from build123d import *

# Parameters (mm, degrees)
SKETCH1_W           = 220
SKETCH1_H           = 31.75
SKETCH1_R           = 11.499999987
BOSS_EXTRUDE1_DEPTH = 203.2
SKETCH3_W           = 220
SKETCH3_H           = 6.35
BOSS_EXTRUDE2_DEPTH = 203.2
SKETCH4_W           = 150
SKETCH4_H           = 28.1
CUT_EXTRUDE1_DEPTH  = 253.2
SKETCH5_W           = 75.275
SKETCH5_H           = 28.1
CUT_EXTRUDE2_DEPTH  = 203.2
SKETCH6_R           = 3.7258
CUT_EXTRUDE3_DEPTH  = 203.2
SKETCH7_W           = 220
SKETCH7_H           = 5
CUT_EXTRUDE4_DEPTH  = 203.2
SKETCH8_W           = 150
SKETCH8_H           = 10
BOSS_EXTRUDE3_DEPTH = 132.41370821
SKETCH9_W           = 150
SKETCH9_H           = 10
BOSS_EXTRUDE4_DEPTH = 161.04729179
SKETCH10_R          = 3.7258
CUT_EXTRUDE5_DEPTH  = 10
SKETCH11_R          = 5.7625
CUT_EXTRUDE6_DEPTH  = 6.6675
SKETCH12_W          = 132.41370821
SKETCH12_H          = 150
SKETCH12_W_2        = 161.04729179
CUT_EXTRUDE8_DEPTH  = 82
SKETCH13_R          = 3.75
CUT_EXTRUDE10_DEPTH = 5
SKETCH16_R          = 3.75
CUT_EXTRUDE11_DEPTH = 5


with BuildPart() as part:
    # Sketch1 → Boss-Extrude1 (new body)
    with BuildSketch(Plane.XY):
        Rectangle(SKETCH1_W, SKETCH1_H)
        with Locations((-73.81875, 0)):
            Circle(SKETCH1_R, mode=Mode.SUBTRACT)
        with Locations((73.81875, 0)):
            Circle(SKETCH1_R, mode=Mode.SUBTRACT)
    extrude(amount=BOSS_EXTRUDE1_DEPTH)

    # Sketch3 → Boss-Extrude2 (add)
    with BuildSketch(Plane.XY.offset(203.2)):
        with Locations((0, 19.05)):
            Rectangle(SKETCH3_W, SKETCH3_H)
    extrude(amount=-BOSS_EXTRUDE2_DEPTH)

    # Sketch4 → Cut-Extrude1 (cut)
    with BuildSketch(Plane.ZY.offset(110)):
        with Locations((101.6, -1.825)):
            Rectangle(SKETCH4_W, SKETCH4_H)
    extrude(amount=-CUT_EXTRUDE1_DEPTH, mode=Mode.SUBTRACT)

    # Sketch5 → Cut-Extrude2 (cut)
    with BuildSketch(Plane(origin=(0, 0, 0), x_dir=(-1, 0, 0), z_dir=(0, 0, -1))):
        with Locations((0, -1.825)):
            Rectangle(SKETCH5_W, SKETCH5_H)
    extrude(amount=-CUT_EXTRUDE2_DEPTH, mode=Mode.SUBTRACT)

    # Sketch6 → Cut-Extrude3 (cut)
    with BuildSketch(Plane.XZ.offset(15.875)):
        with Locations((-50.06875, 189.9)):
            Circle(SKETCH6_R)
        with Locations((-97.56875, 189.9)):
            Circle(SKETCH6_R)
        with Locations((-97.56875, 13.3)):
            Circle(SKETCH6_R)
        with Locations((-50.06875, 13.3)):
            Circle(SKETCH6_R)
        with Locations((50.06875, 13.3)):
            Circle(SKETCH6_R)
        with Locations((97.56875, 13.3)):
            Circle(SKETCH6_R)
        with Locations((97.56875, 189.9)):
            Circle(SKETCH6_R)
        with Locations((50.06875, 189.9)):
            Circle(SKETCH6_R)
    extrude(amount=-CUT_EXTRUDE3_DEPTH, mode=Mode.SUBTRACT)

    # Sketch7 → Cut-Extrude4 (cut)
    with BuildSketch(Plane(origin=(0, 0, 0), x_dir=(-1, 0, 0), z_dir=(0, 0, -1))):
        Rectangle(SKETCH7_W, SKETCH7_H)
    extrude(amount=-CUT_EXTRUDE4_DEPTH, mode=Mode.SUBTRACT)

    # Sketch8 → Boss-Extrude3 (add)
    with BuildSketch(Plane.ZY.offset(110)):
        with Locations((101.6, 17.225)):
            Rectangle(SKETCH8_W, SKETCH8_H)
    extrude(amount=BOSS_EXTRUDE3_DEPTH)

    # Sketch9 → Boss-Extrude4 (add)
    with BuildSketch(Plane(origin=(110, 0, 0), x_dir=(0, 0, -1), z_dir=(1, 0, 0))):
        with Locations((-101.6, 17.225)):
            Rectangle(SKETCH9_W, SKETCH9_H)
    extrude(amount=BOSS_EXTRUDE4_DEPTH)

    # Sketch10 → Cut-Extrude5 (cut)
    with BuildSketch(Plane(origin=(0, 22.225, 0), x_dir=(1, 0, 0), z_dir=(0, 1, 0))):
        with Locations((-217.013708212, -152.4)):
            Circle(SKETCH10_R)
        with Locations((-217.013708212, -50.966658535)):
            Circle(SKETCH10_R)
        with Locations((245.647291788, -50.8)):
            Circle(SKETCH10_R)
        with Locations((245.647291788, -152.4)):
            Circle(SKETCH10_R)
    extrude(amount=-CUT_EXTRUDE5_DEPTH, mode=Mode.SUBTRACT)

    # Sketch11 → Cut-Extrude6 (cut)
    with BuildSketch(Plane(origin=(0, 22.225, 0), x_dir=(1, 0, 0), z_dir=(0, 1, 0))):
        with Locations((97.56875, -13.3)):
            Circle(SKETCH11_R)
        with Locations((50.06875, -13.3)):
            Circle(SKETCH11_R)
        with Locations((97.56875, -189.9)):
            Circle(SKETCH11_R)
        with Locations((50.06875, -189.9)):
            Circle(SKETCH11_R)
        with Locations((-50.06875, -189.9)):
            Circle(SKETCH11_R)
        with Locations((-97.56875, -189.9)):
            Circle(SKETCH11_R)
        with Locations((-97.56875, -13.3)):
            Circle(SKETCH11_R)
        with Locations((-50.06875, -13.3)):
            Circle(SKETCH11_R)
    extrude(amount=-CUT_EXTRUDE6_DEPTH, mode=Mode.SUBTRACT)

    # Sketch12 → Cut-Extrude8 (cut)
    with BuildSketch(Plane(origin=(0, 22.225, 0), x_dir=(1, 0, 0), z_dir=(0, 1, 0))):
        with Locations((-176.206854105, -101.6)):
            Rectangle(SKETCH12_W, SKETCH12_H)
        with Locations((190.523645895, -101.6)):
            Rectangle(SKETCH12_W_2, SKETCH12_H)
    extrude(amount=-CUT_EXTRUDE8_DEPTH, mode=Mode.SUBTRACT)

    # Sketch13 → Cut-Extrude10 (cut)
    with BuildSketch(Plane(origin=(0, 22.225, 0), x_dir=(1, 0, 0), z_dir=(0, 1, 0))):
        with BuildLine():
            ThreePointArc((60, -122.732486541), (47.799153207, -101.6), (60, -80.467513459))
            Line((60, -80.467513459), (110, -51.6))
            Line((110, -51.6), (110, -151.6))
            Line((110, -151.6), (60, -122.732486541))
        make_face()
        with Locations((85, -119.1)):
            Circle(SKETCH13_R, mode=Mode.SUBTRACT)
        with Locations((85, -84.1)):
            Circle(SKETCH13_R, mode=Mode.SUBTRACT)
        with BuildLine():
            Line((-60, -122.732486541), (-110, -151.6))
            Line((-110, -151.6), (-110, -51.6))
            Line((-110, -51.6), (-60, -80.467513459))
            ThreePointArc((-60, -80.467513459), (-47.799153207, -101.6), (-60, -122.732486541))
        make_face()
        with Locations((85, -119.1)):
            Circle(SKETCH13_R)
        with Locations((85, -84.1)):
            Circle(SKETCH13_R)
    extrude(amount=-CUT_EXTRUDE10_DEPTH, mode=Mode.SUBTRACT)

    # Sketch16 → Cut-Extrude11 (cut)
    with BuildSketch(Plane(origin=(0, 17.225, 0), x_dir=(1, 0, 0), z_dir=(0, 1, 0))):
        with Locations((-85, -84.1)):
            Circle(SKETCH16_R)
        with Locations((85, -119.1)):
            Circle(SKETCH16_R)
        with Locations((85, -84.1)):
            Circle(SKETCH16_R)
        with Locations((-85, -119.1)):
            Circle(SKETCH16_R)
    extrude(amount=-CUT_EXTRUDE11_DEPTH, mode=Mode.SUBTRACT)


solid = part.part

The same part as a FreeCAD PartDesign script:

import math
import FreeCAD as App
import Part
import Sketcher
Q = App.Units.Quantity


def add_polygon(sketch, points):
    """Adds a closed chain of lines whose ends are joined by coincident constraints."""
    first, n = sketch.GeometryCount, len(points)
    for a, b in zip(points, points[1:] + points[:1]):
        sketch.addGeometry(Part.LineSegment(App.Vector(*a, 0), App.Vector(*b, 0)), False)
    for i in range(n):
        sketch.addConstraint(Sketcher.Constraint("Coincident", first + i, 2, first + (i + 1) % n, 1))

doc = App.newDocument("Part")
body = doc.addObject("PartDesign::Body", "Body")
body.AllowCompound = True

sketch1 = doc.addObject("Sketcher::SketchObject", "Sketch")
body.addObject(sketch1)
sketch1.AttachmentSupport = (doc.XY_Plane, [""])
sketch1.MapMode = "FlatFace"
add_polygon(sketch1, [(-110, 16), (-110, -16), (110, -16), (110, 16)])
sketch1.addGeometry(Part.Circle(App.Vector(-74, 0, 0), App.Vector(0, 0, 1), 11), False)
sketch1.addGeometry(Part.Circle(App.Vector(74, 0, 0), App.Vector(0, 0, 1), 11), False)
sketch1.addConstraint(Sketcher.Constraint("Vertical", 0))
sketch1.addConstraint(Sketcher.Constraint("Horizontal", 1))
sketch1.addConstraint(Sketcher.Constraint("Vertical", 2))
sketch1.addConstraint(Sketcher.Constraint("Horizontal", 3))
sketch1.addConstraint(Sketcher.Constraint("Equal", 4, 5))
sketch1.addConstraint(Sketcher.Constraint("Symmetric", 4, 3, 5, 3, -1, 1))
sketch1.addConstraint(Sketcher.Constraint("Symmetric", 0, 2, 2, 2, -1, 1))
sketch1.addConstraint(Sketcher.Constraint("PointOnObject", 4, 3, -1))
sketch1.addConstraint(Sketcher.Constraint("Diameter", 4, Q("23 mm")))
sketch1.addConstraint(Sketcher.Constraint("DistanceX", 1, 1, 1, 2, Q("220 mm")))
sketch1.addConstraint(Sketcher.Constraint("DistanceY", 0, 2, 0, 1, Q("31.75 mm")))
sketch1.addConstraint(Sketcher.Constraint("DistanceX", 4, 3, 5, 3, Q("147.6375 mm")))
pad1 = doc.addObject("PartDesign::Pad", "Pad")
body.addObject(pad1)
pad1.Profile = sketch1
pad1.Length = 203.2

sketch2 = doc.addObject("Sketcher::SketchObject", "Sketch001")
body.addObject(sketch2)
sketch2.AttachmentSupport = (doc.XY_Plane, [""])
sketch2.MapMode = "FlatFace"
sketch2.AttachmentOffset = App.Placement(App.Vector(0, 0, 203.2), App.Rotation())
add_polygon(sketch2, [(-110, 22), (-110, 16), (110, 16), (110, 22)])
sketch2.addConstraint(Sketcher.Constraint("Vertical", 0))
sketch2.addConstraint(Sketcher.Constraint("Horizontal", 1))
sketch2.addConstraint(Sketcher.Constraint("Vertical", 2))
sketch2.addConstraint(Sketcher.Constraint("Horizontal", 3))
sketch2.addConstraint(Sketcher.Constraint("DistanceX", 1, 1, 1, 2, Q("220 mm")))
sketch2.addConstraint(Sketcher.Constraint("DistanceX", 0, 2, -1, 1, Q("110 mm")))
sketch2.addConstraint(Sketcher.Constraint("DistanceY", 0, 2, 0, 1, Q("6.35 mm")))
sketch2.addConstraint(Sketcher.Constraint("DistanceY", -1, 1, 0, 2, Q("15.875 mm")))
pad2 = doc.addObject("PartDesign::Pad", "Pad001")
body.addObject(pad2)
pad2.Profile = sketch2
pad2.Length = 203.2
pad2.Reversed = True

sketch3 = doc.addObject("Sketcher::SketchObject", "Sketch002")
body.addObject(sketch3)
sketch3.AttachmentSupport = (doc.YZ_Plane, [""])
sketch3.MapMode = "FlatFace"
sketch3.AttachmentOffset = App.Placement(App.Vector(0, 0, -110), App.Rotation())
add_polygon(sketch3, [(12, 27), (-16, 27), (-16, 177), (12, 177)])
sketch3.addConstraint(Sketcher.Constraint("Horizontal", 0))
sketch3.addConstraint(Sketcher.Constraint("Vertical", 1))
sketch3.addConstraint(Sketcher.Constraint("Horizontal", 2))
sketch3.addConstraint(Sketcher.Constraint("Vertical", 3))
sketch3.addConstraint(Sketcher.Constraint("DistanceY", 1, 1, 1, 2, Q("150 mm")))
sketch3.addConstraint(Sketcher.Constraint("DistanceX", 0, 2, 0, 1, Q("28.1 mm")))
sketch3.addConstraint(Sketcher.Constraint("DistanceY", -1, 1, 0, 2, Q("26.6 mm")))
sketch3.addConstraint(Sketcher.Constraint("DistanceX", 0, 2, -1, 1, Q("15.875 mm")))
pocket1 = doc.addObject("PartDesign::Pocket", "Pocket")
body.addObject(pocket1)
pocket1.Profile = sketch3
pocket1.Length = 253.2
pocket1.Reversed = True

sketch4 = doc.addObject("Sketcher::SketchObject", "Sketch003")
body.addObject(sketch4)
sketch4.AttachmentSupport = (doc.XY_Plane, [""])
sketch4.MapMode = "FlatFace"
add_polygon(sketch4, [(38, 12), (38, -16), (-38, -16), (-38, 12)])
sketch4.addConstraint(Sketcher.Constraint("Vertical", 0))
sketch4.addConstraint(Sketcher.Constraint("Horizontal", 1))
sketch4.addConstraint(Sketcher.Constraint("Vertical", 2))
sketch4.addConstraint(Sketcher.Constraint("Horizontal", 3))
sketch4.addConstraint(Sketcher.Constraint("DistanceY", 0, 2, 0, 1, Q("28.1 mm")))
sketch4.addConstraint(Sketcher.Constraint("DistanceX", 1, 2, 1, 1, Q("75.275 mm")))
sketch4.addConstraint(Sketcher.Constraint("DistanceY", 0, 2, -1, 1, Q("15.875 mm")))
sketch4.addConstraint(Sketcher.Constraint("DistanceX", -1, 1, 0, 2, Q("37.6375 mm")))
pocket2 = doc.addObject("PartDesign::Pocket", "Pocket001")
body.addObject(pocket2)
pocket2.Profile = sketch4
pocket2.Length = 203.2
pocket2.Reversed = True

sketch5 = doc.addObject("Sketcher::SketchObject", "Sketch004")
body.addObject(sketch5)
sketch5.AttachmentSupport = (doc.XZ_Plane, [""])
sketch5.MapMode = "FlatFace"
sketch5.AttachmentOffset = App.Placement(App.Vector(0, 0, 15.875), App.Rotation())
sketch5.addGeometry(Part.Circle(App.Vector(-50.1, 189.9, 0), App.Vector(0, 0, 1), 3.7), False)
sketch5.addGeometry(Part.Circle(App.Vector(-97.6, 189.9, 0), App.Vector(0, 0, 1), 3.7), False)
sketch5.addGeometry(Part.Circle(App.Vector(-97.6, 13.3, 0), App.Vector(0, 0, 1), 3.7), False)
sketch5.addGeometry(Part.Circle(App.Vector(-50.1, 13.3, 0), App.Vector(0, 0, 1), 3.7), False)
sketch5.addGeometry(Part.Circle(App.Vector(50.1, 13.3, 0), App.Vector(0, 0, 1), 3.7), False)
sketch5.addGeometry(Part.Circle(App.Vector(97.6, 13.3, 0), App.Vector(0, 0, 1), 3.7), False)
sketch5.addGeometry(Part.Circle(App.Vector(97.6, 189.9, 0), App.Vector(0, 0, 1), 3.7), False)
sketch5.addGeometry(Part.Circle(App.Vector(50.1, 189.9, 0), App.Vector(0, 0, 1), 3.7), False)
sketch5.addConstraint(Sketcher.Constraint("Equal", 0, 1))
sketch5.addConstraint(Sketcher.Constraint("Equal", 1, 2))
sketch5.addConstraint(Sketcher.Constraint("Equal", 2, 3))
sketch5.addConstraint(Sketcher.Constraint("Equal", 3, 4))
sketch5.addConstraint(Sketcher.Constraint("Equal", 4, 5))
sketch5.addConstraint(Sketcher.Constraint("Equal", 5, 6))
sketch5.addConstraint(Sketcher.Constraint("Equal", 6, 7))
sketch5.addConstraint(Sketcher.Constraint("Symmetric", 3, 3, 4, 3, -2))
sketch5.addConstraint(Sketcher.Constraint("Symmetric", 2, 3, 5, 3, -2))
sketch5.addConstraint(Sketcher.Constraint("Symmetric", 1, 3, 6, 3, -2))
sketch5.addConstraint(Sketcher.Constraint("Symmetric", 0, 3, 7, 3, -2))
sketch5.addConstraint(Sketcher.Constraint("Horizontal", 0, 3, 1, 3))
sketch5.addConstraint(Sketcher.Constraint("Horizontal", 2, 3, 3, 3))
sketch5.addConstraint(Sketcher.Constraint("Vertical", 1, 3, 2, 3))
sketch5.addConstraint(Sketcher.Constraint("Vertical", 0, 3, 3, 3))
sketch5.addConstraint(Sketcher.Constraint("Diameter", 0, Q("7.4516 mm")))
sketch5.addConstraint(Sketcher.Constraint("DistanceY", -1, 1, 0, 3, Q("189.9 mm")))
sketch5.addConstraint(Sketcher.Constraint("DistanceY", -1, 1, 2, 3, Q("13.3 mm")))
sketch5.addConstraint(Sketcher.Constraint("DistanceX", 1, 3, 0, 3, Q("47.5 mm")))
sketch5.addConstraint(Sketcher.Constraint("DistanceX", 3, 3, 4, 3, Q("100.1375 mm")))
pocket3 = doc.addObject("PartDesign::Pocket", "Pocket002")
body.addObject(pocket3)
pocket3.Profile = sketch5
pocket3.Length = 203.2

sketch6 = doc.addObject("Sketcher::SketchObject", "Sketch005")
body.addObject(sketch6)
sketch6.AttachmentSupport = (doc.XY_Plane, [""])
sketch6.MapMode = "FlatFace"
add_polygon(sketch6, [(110, 2), (110, -2), (-110, -2), (-110, 2)])
sketch6.addConstraint(Sketcher.Constraint("Vertical", 0))
sketch6.addConstraint(Sketcher.Constraint("Horizontal", 1))
sketch6.addConstraint(Sketcher.Constraint("Vertical", 2))
sketch6.addConstraint(Sketcher.Constraint("Horizontal", 3))
sketch6.addConstraint(Sketcher.Constraint("Symmetric", 0, 2, 2, 2, -1, 1))
sketch6.addConstraint(Sketcher.Constraint("DistanceX", 1, 2, 1, 1, Q("220 mm")))
sketch6.addConstraint(Sketcher.Constraint("DistanceY", 0, 2, 0, 1, Q("5 mm")))
pocket4 = doc.addObject("PartDesign::Pocket", "Pocket003")
body.addObject(pocket4)
pocket4.Profile = sketch6
pocket4.Length = 203.2
pocket4.Reversed = True

sketch7 = doc.addObject("Sketcher::SketchObject", "Sketch006")
body.addObject(sketch7)
sketch7.AttachmentSupport = (doc.YZ_Plane, [""])
sketch7.MapMode = "FlatFace"
sketch7.AttachmentOffset = App.Placement(App.Vector(0, 0, -110), App.Rotation())
add_polygon(sketch7, [(22, 27), (12, 27), (12, 177), (22, 177)])
sketch7.addConstraint(Sketcher.Constraint("Horizontal", 0))
sketch7.addConstraint(Sketcher.Constraint("Vertical", 1))
sketch7.addConstraint(Sketcher.Constraint("Horizontal", 2))
sketch7.addConstraint(Sketcher.Constraint("Vertical", 3))
sketch7.addConstraint(Sketcher.Constraint("DistanceX", 0, 2, 0, 1, Q("10 mm")))
sketch7.addConstraint(Sketcher.Constraint("DistanceY", 1, 1, 1, 2, Q("150 mm")))
sketch7.addConstraint(Sketcher.Constraint("DistanceY", -1, 1, 0, 2, Q("26.6 mm")))
sketch7.addConstraint(Sketcher.Constraint("DistanceX", -1, 1, 0, 2, Q("12.225 mm")))
pad3 = doc.addObject("PartDesign::Pad", "Pad002")
body.addObject(pad3)
pad3.Profile = sketch7
pad3.Length = 132.413708
pad3.Reversed = True

sketch8 = doc.addObject("Sketcher::SketchObject", "Sketch007")
body.addObject(sketch8)
sketch8.AttachmentSupport = (doc.YZ_Plane, [""])
sketch8.MapMode = "FlatFace"
sketch8.AttachmentOffset = App.Placement(App.Vector(0, 0, 110), App.Rotation())
add_polygon(sketch8, [(22, 177), (12, 177), (12, 27), (22, 27)])
sketch8.addConstraint(Sketcher.Constraint("Horizontal", 0))
sketch8.addConstraint(Sketcher.Constraint("Vertical", 1))
sketch8.addConstraint(Sketcher.Constraint("Horizontal", 2))
sketch8.addConstraint(Sketcher.Constraint("Vertical", 3))
sketch8.addConstraint(Sketcher.Constraint("DistanceX", 0, 2, 0, 1, Q("10 mm")))
sketch8.addConstraint(Sketcher.Constraint("DistanceY", 1, 2, 1, 1, Q("150 mm")))
sketch8.addConstraint(Sketcher.Constraint("DistanceY", -1, 1, 0, 2, Q("176.6 mm")))
sketch8.addConstraint(Sketcher.Constraint("DistanceX", -1, 1, 0, 2, Q("12.225 mm")))
pad4 = doc.addObject("PartDesign::Pad", "Pad003")
body.addObject(pad4)
pad4.Profile = sketch8
pad4.Length = 161.047292

sketch9 = doc.addObject("Sketcher::SketchObject", "Sketch008")
body.addObject(sketch9)
sketch9.AttachmentSupport = (doc.XZ_Plane, [""])
sketch9.MapMode = "FlatFace"
sketch9.AttachmentOffset = App.Placement(App.Vector(0, 0, -22.225), App.Rotation())
sketch9.addGeometry(Part.Circle(App.Vector(-217, 152.4, 0), App.Vector(0, 0, 1), 3.7), False)
sketch9.addGeometry(Part.Circle(App.Vector(-217, 51, 0), App.Vector(0, 0, 1), 3.7), False)
sketch9.addGeometry(Part.Circle(App.Vector(245.6, 50.8, 0), App.Vector(0, 0, 1), 3.7), False)
sketch9.addGeometry(Part.Circle(App.Vector(245.6, 152.4, 0), App.Vector(0, 0, 1), 3.7), False)
sketch9.addConstraint(Sketcher.Constraint("Equal", 0, 1))
sketch9.addConstraint(Sketcher.Constraint("Equal", 1, 2))
sketch9.addConstraint(Sketcher.Constraint("Equal", 2, 3))
sketch9.addConstraint(Sketcher.Constraint("Horizontal", 0, 3, 3, 3))
sketch9.addConstraint(Sketcher.Constraint("Vertical", 0, 3, 1, 3))
sketch9.addConstraint(Sketcher.Constraint("Vertical", 2, 3, 3, 3))
sketch9.addConstraint(Sketcher.Constraint("Diameter", 0, Q("7.4516 mm")))
sketch9.addConstraint(Sketcher.Constraint("DistanceY", -1, 1, 0, 3, Q("152.4 mm")))
sketch9.addConstraint(Sketcher.Constraint("DistanceY", -1, 1, 2, 3, Q("50.8 mm")))
sketch9.addConstraint(Sketcher.Constraint("DistanceX", 1, 3, 2, 3, Q("462.661 mm")))
sketch9.addConstraint(Sketcher.Constraint("DistanceX", 0, 3, -1, 1, Q("217.013708 mm")))
sketch9.addConstraint(Sketcher.Constraint("DistanceY", -1, 1, 1, 3, Q("50.966659 mm")))
pocket5 = doc.addObject("PartDesign::Pocket", "Pocket004")
body.addObject(pocket5)
pocket5.Profile = sketch9
pocket5.Length = 10
pocket5.Reversed = True

sketch10 = doc.addObject("Sketcher::SketchObject", "Sketch009")
body.addObject(sketch10)
sketch10.AttachmentSupport = (doc.XZ_Plane, [""])
sketch10.MapMode = "FlatFace"
sketch10.AttachmentOffset = App.Placement(App.Vector(0, 0, -22.225), App.Rotation())
sketch10.addGeometry(Part.Circle(App.Vector(98, 13, 0), App.Vector(0, 0, 1), 6), False)
sketch10.addGeometry(Part.Circle(App.Vector(50, 13, 0), App.Vector(0, 0, 1), 6), False)
sketch10.addGeometry(Part.Circle(App.Vector(98, 190, 0), App.Vector(0, 0, 1), 6), False)
sketch10.addGeometry(Part.Circle(App.Vector(50, 190, 0), App.Vector(0, 0, 1), 6), False)
sketch10.addGeometry(Part.Circle(App.Vector(-50, 190, 0), App.Vector(0, 0, 1), 6), False)
sketch10.addGeometry(Part.Circle(App.Vector(-98, 190, 0), App.Vector(0, 0, 1), 6), False)
sketch10.addGeometry(Part.Circle(App.Vector(-98, 13, 0), App.Vector(0, 0, 1), 6), False)
sketch10.addGeometry(Part.Circle(App.Vector(-50, 13, 0), App.Vector(0, 0, 1), 6), False)
sketch10.addConstraint(Sketcher.Constraint("Equal", 0, 1))
sketch10.addConstraint(Sketcher.Constraint("Equal", 1, 2))
sketch10.addConstraint(Sketcher.Constraint("Equal", 2, 3))
sketch10.addConstraint(Sketcher.Constraint("Equal", 3, 4))
sketch10.addConstraint(Sketcher.Constraint("Equal", 4, 5))
sketch10.addConstraint(Sketcher.Constraint("Equal", 5, 6))
sketch10.addConstraint(Sketcher.Constraint("Equal", 6, 7))
sketch10.addConstraint(Sketcher.Constraint("Symmetric", 3, 3, 4, 3, -2))
sketch10.addConstraint(Sketcher.Constraint("Symmetric", 2, 3, 5, 3, -2))
sketch10.addConstraint(Sketcher.Constraint("Symmetric", 0, 3, 6, 3, -2))
sketch10.addConstraint(Sketcher.Constraint("Symmetric", 1, 3, 7, 3, -2))
sketch10.addConstraint(Sketcher.Constraint("Horizontal", 0, 3, 1, 3))
sketch10.addConstraint(Sketcher.Constraint("Horizontal", 2, 3, 3, 3))
sketch10.addConstraint(Sketcher.Constraint("Vertical", 0, 3, 2, 3))
sketch10.addConstraint(Sketcher.Constraint("Vertical", 1, 3, 3, 3))
sketch10.addConstraint(Sketcher.Constraint("Diameter", 0, Q("11.525 mm")))
sketch10.addConstraint(Sketcher.Constraint("DistanceY", -1, 1, 0, 3, Q("13.3 mm")))
sketch10.addConstraint(Sketcher.Constraint("DistanceY", -1, 1, 2, 3, Q("189.9 mm")))
sketch10.addConstraint(Sketcher.Constraint("DistanceX", 1, 3, 0, 3, Q("47.5 mm")))
sketch10.addConstraint(Sketcher.Constraint("DistanceX", 4, 3, 3, 3, Q("100.1375 mm")))
pocket6 = doc.addObject("PartDesign::Pocket", "Pocket005")
body.addObject(pocket6)
pocket6.Profile = sketch10
pocket6.Length = 6.6675
pocket6.Reversed = True

sketch11 = doc.addObject("Sketcher::SketchObject", "Sketch010")
body.addObject(sketch11)
sketch11.AttachmentSupport = (doc.XZ_Plane, [""])
sketch11.MapMode = "FlatFace"
sketch11.AttachmentOffset = App.Placement(App.Vector(0, 0, -22.225), App.Rotation())
add_polygon(sketch11, [(-242, 27), (-242, 177), (-110, 177), (-110, 27)])
add_polygon(sketch11, [(110, 27), (110, 177), (271, 177), (271, 27)])
sketch11.addConstraint(Sketcher.Constraint("Vertical", 0))
sketch11.addConstraint(Sketcher.Constraint("Horizontal", 1))
sketch11.addConstraint(Sketcher.Constraint("Vertical", 2))
sketch11.addConstraint(Sketcher.Constraint("Horizontal", 3))
sketch11.addConstraint(Sketcher.Constraint("Vertical", 4))
sketch11.addConstraint(Sketcher.Constraint("Horizontal", 5))
sketch11.addConstraint(Sketcher.Constraint("Vertical", 6))
sketch11.addConstraint(Sketcher.Constraint("Horizontal", 7))
sketch11.addConstraint(Sketcher.Constraint("Symmetric", 1, 2, 4, 2, -2))
sketch11.addConstraint(Sketcher.Constraint("Horizontal", 3, 2, 6, 2))
sketch11.addConstraint(Sketcher.Constraint("DistanceY", 0, 1, 0, 2, Q("150 mm")))
sketch11.addConstraint(Sketcher.Constraint("DistanceX", 1, 2, -1, 1, Q("110 mm")))
sketch11.addConstraint(Sketcher.Constraint("DistanceY", -1, 1, 0, 2, Q("176.6 mm")))
sketch11.addConstraint(Sketcher.Constraint("DistanceX", 0, 2, 5, 2, Q("513.461 mm")))
sketch11.addConstraint(Sketcher.Constraint("DistanceX", 1, 1, 1, 2, Q("132.413708 mm")))
pocket7 = doc.addObject("PartDesign::Pocket", "Pocket006")
body.addObject(pocket7)
pocket7.Profile = sketch11
pocket7.Length = 82
pocket7.Reversed = True

sketch12 = doc.addObject("Sketcher::SketchObject", "Sketch011")
body.addObject(sketch12)
sketch12.AttachmentSupport = (doc.XZ_Plane, [""])
sketch12.MapMode = "FlatFace"
sketch12.AttachmentOffset = App.Placement(App.Vector(0, 0, -22.225), App.Rotation())
sketch12.addGeometry(Part.ArcOfCircle(Part.Circle(App.Vector(72, 102, 0), App.Vector(0, 0, 1), 24), math.radians(120), math.radians(240)), False)
sketch12.addGeometry(Part.LineSegment(App.Vector(60, 123, 0), App.Vector(110, 152, 0)), False)
sketch12.addGeometry(Part.LineSegment(App.Vector(110, 152, 0), App.Vector(110, 52, 0)), False)
sketch12.addGeometry(Part.LineSegment(App.Vector(110, 52, 0), App.Vector(60, 80, 0)), False)
sketch12.addGeometry(Part.LineSegment(App.Vector(-110, 152, 0), App.Vector(-60, 123, 0)), False)
sketch12.addGeometry(Part.ArcOfCircle(Part.Circle(App.Vector(-72, 102, 0), App.Vector(0, 0, 1), 24), math.radians(-60), math.radians(60)), False)
sketch12.addGeometry(Part.LineSegment(App.Vector(-60, 80, 0), App.Vector(-110, 52, 0)), False)
sketch12.addGeometry(Part.LineSegment(App.Vector(-110, 52, 0), App.Vector(-110, 152, 0)), False)
sketch12.addConstraint(Sketcher.Constraint("Tangent", 0, 1, 1, 1))
sketch12.addConstraint(Sketcher.Constraint("Coincident", 1, 2, 2, 1))
sketch12.addConstraint(Sketcher.Constraint("Coincident", 2, 2, 3, 1))
sketch12.addConstraint(Sketcher.Constraint("Tangent", 3, 2, 0, 2))
sketch12.addConstraint(Sketcher.Constraint("Tangent", 4, 2, 5, 2))
sketch12.addConstraint(Sketcher.Constraint("Tangent", 5, 1, 6, 1))
sketch12.addConstraint(Sketcher.Constraint("Coincident", 6, 2, 7, 1))
sketch12.addConstraint(Sketcher.Constraint("Coincident", 7, 2, 4, 1))
sketch12.addConstraint(Sketcher.Constraint("Vertical", 2))
sketch12.addConstraint(Sketcher.Constraint("Vertical", 7))
sketch12.addConstraint(Sketcher.Constraint("Equal", 0, 5))
sketch12.addConstraint(Sketcher.Constraint("Symmetric", 0, 3, 5, 3, -2))
sketch12.addConstraint(Sketcher.Constraint("Symmetric", 2, 2, 6, 2, -2))
sketch12.addConstraint(Sketcher.Constraint("Parallel", 3, 4))
sketch12.addConstraint(Sketcher.Constraint("Parallel", 1, 6))
sketch12.addConstraint(Sketcher.Constraint("DistanceY", 2, 2, 2, 1, Q("100 mm")))
sketch12.addConstraint(Sketcher.Constraint("Angle", 1, Q("30 deg")))
sketch12.addConstraint(Sketcher.Constraint("DistanceX", -1, 1, 0, 1, Q("60 mm")))
sketch12.addConstraint(Sketcher.Constraint("DistanceX", -1, 1, 1, 2, Q("110 mm")))
sketch12.addConstraint(Sketcher.Constraint("DistanceY", -1, 1, 0, 3, Q("101.6 mm")))
pocket8 = doc.addObject("PartDesign::Pocket", "Pocket007")
body.addObject(pocket8)
pocket8.Profile = sketch12
pocket8.Length = 5
pocket8.Reversed = True

sketch13 = doc.addObject("Sketcher::SketchObject", "Sketch012")
body.addObject(sketch13)
sketch13.AttachmentSupport = (doc.XZ_Plane, [""])
sketch13.MapMode = "FlatFace"
sketch13.AttachmentOffset = App.Placement(App.Vector(0, 0, -17.225), App.Rotation())
sketch13.addGeometry(Part.Circle(App.Vector(-85, 84.1, 0), App.Vector(0, 0, 1), 3.8), False)
sketch13.addGeometry(Part.Circle(App.Vector(85, 119.1, 0), App.Vector(0, 0, 1), 3.8), False)
sketch13.addGeometry(Part.Circle(App.Vector(85, 84.1, 0), App.Vector(0, 0, 1), 3.8), False)
sketch13.addGeometry(Part.Circle(App.Vector(-85, 119.1, 0), App.Vector(0, 0, 1), 3.8), False)
sketch13.addConstraint(Sketcher.Constraint("Equal", 0, 1))
sketch13.addConstraint(Sketcher.Constraint("Equal", 1, 2))
sketch13.addConstraint(Sketcher.Constraint("Equal", 2, 3))
sketch13.addConstraint(Sketcher.Constraint("Symmetric", 0, 3, 2, 3, -2))
sketch13.addConstraint(Sketcher.Constraint("Symmetric", 1, 3, 3, 3, -2))
sketch13.addConstraint(Sketcher.Constraint("Vertical", 1, 3, 2, 3))
sketch13.addConstraint(Sketcher.Constraint("Diameter", 0, Q("7.5 mm")))
sketch13.addConstraint(Sketcher.Constraint("DistanceX", 0, 3, -1, 1, Q("85 mm")))
sketch13.addConstraint(Sketcher.Constraint("DistanceY", 0, 3, 1, 3, Q("35 mm")))
sketch13.addConstraint(Sketcher.Constraint("DistanceY", -1, 1, 0, 3, Q("84.1 mm")))
pocket9 = doc.addObject("PartDesign::Pocket", "Pocket008")
body.addObject(pocket9)
pocket9.Profile = sketch13
pocket9.Length = 5
pocket9.Reversed = True

doc.recompute()
